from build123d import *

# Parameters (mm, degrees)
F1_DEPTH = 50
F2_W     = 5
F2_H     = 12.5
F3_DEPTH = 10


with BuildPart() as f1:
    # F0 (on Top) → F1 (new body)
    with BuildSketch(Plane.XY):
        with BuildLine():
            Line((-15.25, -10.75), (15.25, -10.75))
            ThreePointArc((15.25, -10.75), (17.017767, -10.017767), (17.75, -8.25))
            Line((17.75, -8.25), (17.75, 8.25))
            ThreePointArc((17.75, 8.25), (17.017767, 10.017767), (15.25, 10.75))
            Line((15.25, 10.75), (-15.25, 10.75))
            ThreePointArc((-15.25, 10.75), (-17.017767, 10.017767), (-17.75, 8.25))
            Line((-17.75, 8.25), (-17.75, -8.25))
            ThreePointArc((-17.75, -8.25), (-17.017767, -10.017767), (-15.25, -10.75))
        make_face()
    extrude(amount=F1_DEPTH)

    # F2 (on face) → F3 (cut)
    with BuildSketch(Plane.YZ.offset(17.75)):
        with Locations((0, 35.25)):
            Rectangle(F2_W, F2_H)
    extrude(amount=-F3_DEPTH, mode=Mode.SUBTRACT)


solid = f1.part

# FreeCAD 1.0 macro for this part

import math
import FreeCAD as App
import Part
import Sketcher

doc = App.newDocument("Part")
params = doc.addObject("Spreadsheet::Sheet", "Params")
for row, (alias, value) in enumerate([
    ("sketch1_radius", "2.5 mm"),
    ("sketch1_width", "30.5 mm"),
    ("sketch1_height", "16.5 mm"),
    ("pad1_length", "50 mm"),
    ("sketch2_width", "5 mm"),
    ("sketch2_height", "12.5 mm"),
    ("pocket1_length", "10 mm"),
], start=1):
    params.set(f"A{row}", alias)
    params.set(f"B{row}", "=" + value)
    params.setAlias(f"B{row}", alias)

body = doc.addObject("PartDesign::Body", "Body")

# Sketch on XY plane
sketch1 = body.newObject("Sketcher::SketchObject", "Sketch")
sketch1.AttachmentSupport = (doc.getObject("XY_Plane"), [""])
sketch1.MapMode = "FlatFace"
sketch1.addGeometry([
    Part.LineSegment(App.Vector(-15.2, -10.8, 0), App.Vector(15.2, -10.8, 0)),  # 0
    Part.ArcOfCircle(Part.Circle(App.Vector(15.3, -8.3, 0), App.Vector(0, 0, 1), 2.5), math.radians(-90), math.radians(0)),  # 1
    Part.LineSegment(App.Vector(17.8, -8.2, 0), App.Vector(17.8, 8.2, 0)),  # 2
    Part.ArcOfCircle(Part.Circle(App.Vector(15.3, 8.3, 0), App.Vector(0, 0, 1), 2.5), math.radians(0), math.radians(90)),  # 3
    Part.LineSegment(App.Vector(15.2, 10.8, 0), App.Vector(-15.2, 10.8, 0)),  # 4
    Part.ArcOfCircle(Part.Circle(App.Vector(-15.3, 8.3, 0), App.Vector(0, 0, 1), 2.5), math.radians(90), math.radians(180)),  # 5
    Part.LineSegment(App.Vector(-17.8, 8.2, 0), App.Vector(-17.8, -8.2, 0)),  # 6
    Part.ArcOfCircle(Part.Circle(App.Vector(-15.3, -8.3, 0), App.Vector(0, 0, 1), 2.5), math.radians(180), math.radians(270)),  # 7
], False)
sketch1.addConstraint([
    Sketcher.Constraint("Tangent", 0, 2, 1, 1),
    Sketcher.Constraint("Tangent", 1, 2, 2, 1),
    Sketcher.Constraint("Tangent", 2, 2, 3, 1),
    Sketcher.Constraint("Tangent", 3, 2, 4, 1),
    Sketcher.Constraint("Tangent", 4, 2, 5, 1),
    Sketcher.Constraint("Tangent", 5, 2, 6, 1),
    Sketcher.Constraint("Tangent", 6, 2, 7, 1),
    Sketcher.Constraint("Tangent", 7, 2, 0, 1),
    Sketcher.Constraint("Horizontal", 0),
    Sketcher.Constraint("Vertical", 2),
    Sketcher.Constraint("Horizontal", 4),
    Sketcher.Constraint("Vertical", 6),
    Sketcher.Constraint("Equal", 1, 3),
    Sketcher.Constraint("Equal", 3, 5),
    Sketcher.Constraint("Equal", 5, 7),
    Sketcher.Constraint("Symmetric", 1, 3, 5, 3, -1, 1),
    Sketcher.Constraint("Radius", 1, 2.5),
    Sketcher.Constraint("DistanceX", 0, 1, 0, 2, 30.5),
    Sketcher.Constraint("DistanceY", 2, 1, 2, 2, 16.5),
])
sketch1.setExpression("Constraints[16]", "Params.sketch1_radius")
sketch1.setExpression("Constraints[17]", "Params.sketch1_width")
sketch1.setExpression("Constraints[18]", "Params.sketch1_height")
pad1 = body.newObject("PartDesign::Pad", "Pad")
pad1.Profile = sketch1
pad1.setExpression("Length", "Params.pad1_length")

# Sketch on YZ plane
sketch2 = body.newObject("Sketcher::SketchObject", "Sketch001")
sketch2.AttachmentSupport = (doc.getObject("YZ_Plane"), [""])
sketch2.MapMode = "FlatFace"
sketch2.AttachmentOffset = App.Placement(App.Vector(0, 0, 17.75), App.Rotation())
sketch2.addGeometry([
    Part.LineSegment(App.Vector(-2, 42, 0), App.Vector(-2, 29, 0)),
    Part.LineSegment(App.Vector(-2, 29, 0), App.Vector(2, 29, 0)),
    Part.LineSegment(App.Vector(2, 29, 0), App.Vector(2, 42, 0)),
    Part.LineSegment(App.Vector(2, 42, 0), App.Vector(-2, 42, 0)),
], False)
sketch2.addConstraint([
    Sketcher.Constraint("Coincident", 0, 2, 1, 1),
    Sketcher.Constraint("Coincident", 1, 2, 2, 1),
    Sketcher.Constraint("Coincident", 2, 2, 3, 1),
    Sketcher.Constraint("Coincident", 3, 2, 0, 1),
    Sketcher.Constraint("Vertical", 0),
    Sketcher.Constraint("Horizontal", 1),
    Sketcher.Constraint("Vertical", 2),
    Sketcher.Constraint("Horizontal", 3),
    Sketcher.Constraint("DistanceX", 1, 1, 1, 2, 5.0),
    Sketcher.Constraint("DistanceY", 0, 2, 0, 1, 12.5),
    Sketcher.Constraint("DistanceY", -1, 1, 0, 2, 29.0),
    Sketcher.Constraint("DistanceX", 0, 2, -1, 1, 2.5),
])
sketch2.setExpression("Constraints[8]", "Params.sketch2_width")
sketch2.setExpression("Constraints[9]", "Params.sketch2_height")
pocket1 = body.newObject("PartDesign::Pocket", "Pocket")
pocket1.Profile = sketch2
pocket1.setExpression("Length", "Params.pocket1_length")

doc.recompute()
